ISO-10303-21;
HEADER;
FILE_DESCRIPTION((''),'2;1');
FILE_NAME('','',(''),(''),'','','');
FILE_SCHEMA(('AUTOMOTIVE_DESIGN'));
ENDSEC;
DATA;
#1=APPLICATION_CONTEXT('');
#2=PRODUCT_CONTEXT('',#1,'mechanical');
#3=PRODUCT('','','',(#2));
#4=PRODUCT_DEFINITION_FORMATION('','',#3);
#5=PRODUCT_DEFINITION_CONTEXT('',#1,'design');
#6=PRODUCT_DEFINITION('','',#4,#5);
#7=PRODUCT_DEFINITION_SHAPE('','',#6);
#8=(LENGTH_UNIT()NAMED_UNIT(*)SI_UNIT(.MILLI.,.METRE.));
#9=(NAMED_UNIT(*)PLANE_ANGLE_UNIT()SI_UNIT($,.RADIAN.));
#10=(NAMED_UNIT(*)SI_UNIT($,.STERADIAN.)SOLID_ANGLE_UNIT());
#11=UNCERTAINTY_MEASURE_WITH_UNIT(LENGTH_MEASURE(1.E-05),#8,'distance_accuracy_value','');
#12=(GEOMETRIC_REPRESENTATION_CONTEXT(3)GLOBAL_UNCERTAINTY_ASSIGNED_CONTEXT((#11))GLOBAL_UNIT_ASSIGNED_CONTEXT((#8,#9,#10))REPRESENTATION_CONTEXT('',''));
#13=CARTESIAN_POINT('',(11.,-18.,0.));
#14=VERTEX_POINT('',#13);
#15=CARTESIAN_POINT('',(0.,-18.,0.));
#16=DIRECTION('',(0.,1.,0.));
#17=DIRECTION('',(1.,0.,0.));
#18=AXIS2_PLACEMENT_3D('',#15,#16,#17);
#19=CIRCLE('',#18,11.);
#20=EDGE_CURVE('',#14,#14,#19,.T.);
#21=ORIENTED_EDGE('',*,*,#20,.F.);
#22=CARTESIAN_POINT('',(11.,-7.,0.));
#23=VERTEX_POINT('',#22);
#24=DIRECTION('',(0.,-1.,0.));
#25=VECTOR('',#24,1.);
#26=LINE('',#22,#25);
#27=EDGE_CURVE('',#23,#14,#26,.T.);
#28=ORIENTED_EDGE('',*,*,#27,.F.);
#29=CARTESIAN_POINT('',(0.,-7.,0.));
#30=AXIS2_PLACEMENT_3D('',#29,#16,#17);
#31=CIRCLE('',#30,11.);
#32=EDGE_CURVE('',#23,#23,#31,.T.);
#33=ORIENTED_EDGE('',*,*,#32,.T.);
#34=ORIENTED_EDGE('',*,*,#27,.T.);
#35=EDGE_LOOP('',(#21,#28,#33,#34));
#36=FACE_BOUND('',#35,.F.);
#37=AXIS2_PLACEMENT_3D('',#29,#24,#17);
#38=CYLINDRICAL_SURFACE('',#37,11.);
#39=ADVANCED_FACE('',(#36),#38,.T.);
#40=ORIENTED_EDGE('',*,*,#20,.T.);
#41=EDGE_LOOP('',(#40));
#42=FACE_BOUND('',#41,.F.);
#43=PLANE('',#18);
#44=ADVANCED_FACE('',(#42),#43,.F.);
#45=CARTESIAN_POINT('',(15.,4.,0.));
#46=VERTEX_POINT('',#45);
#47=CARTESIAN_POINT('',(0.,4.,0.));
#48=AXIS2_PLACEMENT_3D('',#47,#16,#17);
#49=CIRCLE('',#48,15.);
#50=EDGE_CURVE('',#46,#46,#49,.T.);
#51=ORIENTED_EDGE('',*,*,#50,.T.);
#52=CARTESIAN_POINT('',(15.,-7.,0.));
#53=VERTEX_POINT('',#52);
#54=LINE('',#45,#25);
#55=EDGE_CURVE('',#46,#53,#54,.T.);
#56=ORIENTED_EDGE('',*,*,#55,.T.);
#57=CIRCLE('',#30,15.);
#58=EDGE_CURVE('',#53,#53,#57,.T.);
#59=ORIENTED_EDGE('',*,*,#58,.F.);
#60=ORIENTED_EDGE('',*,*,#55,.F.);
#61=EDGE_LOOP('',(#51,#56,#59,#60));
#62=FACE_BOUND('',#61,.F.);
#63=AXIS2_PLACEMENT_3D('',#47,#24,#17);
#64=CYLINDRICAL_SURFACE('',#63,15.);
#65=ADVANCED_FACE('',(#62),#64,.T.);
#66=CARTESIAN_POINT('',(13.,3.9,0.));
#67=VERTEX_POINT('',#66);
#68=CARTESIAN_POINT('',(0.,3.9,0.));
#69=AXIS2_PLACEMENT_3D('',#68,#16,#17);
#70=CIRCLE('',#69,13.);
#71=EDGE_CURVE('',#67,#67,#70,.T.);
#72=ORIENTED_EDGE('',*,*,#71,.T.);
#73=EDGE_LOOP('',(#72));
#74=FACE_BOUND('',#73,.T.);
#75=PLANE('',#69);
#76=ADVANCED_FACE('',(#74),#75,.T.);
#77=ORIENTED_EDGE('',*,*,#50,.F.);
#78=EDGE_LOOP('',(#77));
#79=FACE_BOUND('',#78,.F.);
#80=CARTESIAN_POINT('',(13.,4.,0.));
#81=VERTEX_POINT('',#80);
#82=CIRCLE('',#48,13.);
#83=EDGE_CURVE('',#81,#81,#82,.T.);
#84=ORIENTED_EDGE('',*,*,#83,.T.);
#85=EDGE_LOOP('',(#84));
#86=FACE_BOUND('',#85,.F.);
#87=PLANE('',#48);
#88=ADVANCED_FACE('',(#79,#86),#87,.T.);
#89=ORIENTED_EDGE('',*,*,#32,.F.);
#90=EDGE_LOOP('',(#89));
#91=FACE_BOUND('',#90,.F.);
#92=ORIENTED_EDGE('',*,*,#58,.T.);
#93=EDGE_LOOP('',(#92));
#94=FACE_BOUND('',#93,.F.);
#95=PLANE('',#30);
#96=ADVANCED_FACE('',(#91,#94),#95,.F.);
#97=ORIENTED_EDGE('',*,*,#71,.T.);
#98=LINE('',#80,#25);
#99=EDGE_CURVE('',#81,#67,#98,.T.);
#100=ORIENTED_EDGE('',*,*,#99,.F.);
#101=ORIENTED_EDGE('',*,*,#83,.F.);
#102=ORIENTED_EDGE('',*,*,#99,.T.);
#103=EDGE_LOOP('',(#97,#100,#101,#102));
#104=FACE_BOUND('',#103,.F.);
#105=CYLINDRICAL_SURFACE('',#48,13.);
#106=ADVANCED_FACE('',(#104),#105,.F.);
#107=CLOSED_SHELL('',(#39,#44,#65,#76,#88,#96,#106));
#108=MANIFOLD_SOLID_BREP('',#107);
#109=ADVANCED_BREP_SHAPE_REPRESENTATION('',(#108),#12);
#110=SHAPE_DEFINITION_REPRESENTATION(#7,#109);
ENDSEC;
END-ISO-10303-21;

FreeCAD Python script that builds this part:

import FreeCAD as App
import Part
import Sketcher
from FreeCAD import Vector

doc = App.newDocument("Part")
body = doc.addObject("PartDesign::Body", "Body")

# Sketch on XY plane
sketch1 = doc.addObject("Sketcher::SketchObject", "Sketch")
body.addObject(sketch1)
sketch1.AttachmentSupport = (doc.XY_Plane, [""])
sketch1.MapMode = "FlatFace"
sketch1.addGeometry(Part.LineSegment(Vector(15, 4, 0), Vector(0, 4, 0)), False)
sketch1.addGeometry(Part.LineSegment(Vector(0, 4, 0), Vector(0, -18, 0)), False)
sketch1.addGeometry(Part.LineSegment(Vector(0, -18, 0), Vector(11, -18, 0)), False)
sketch1.addGeometry(Part.LineSegment(Vector(11, -18, 0), Vector(11, -7, 0)), False)
sketch1.addGeometry(Part.LineSegment(Vector(11, -7, 0), Vector(15, -7, 0)), False)
sketch1.addGeometry(Part.LineSegment(Vector(15, -7, 0), Vector(15, 4, 0)), False)
sketch1.addConstraint(Sketcher.Constraint("Coincident", 0, 2, 1, 1))
sketch1.addConstraint(Sketcher.Constraint("Coincident", 1, 2, 2, 1))
sketch1.addConstraint(Sketcher.Constraint("Coincident", 2, 2, 3, 1))
sketch1.addConstraint(Sketcher.Constraint("Coincident", 3, 2, 4, 1))
sketch1.addConstraint(Sketcher.Constraint("Coincident", 4, 2, 5, 1))
sketch1.addConstraint(Sketcher.Constraint("Coincident", 5, 2, 0, 1))
sketch1.addConstraint(Sketcher.Constraint("Horizontal", 0))
sketch1.addConstraint(Sketcher.Constraint("Vertical", 1))
sketch1.addConstraint(Sketcher.Constraint("Horizontal", 2))
sketch1.addConstraint(Sketcher.Constraint("Vertical", 3))
sketch1.addConstraint(Sketcher.Constraint("Horizontal", 4))
sketch1.addConstraint(Sketcher.Constraint("Vertical", 5))
sketch1.addConstraint(Sketcher.Constraint("PointOnObject", 0, 2, -2))
sketch1.addConstraint(Sketcher.Constraint("Equal", 2, 3))
sketch1.addConstraint(Sketcher.Constraint("Equal", 3, 5))
sketch1.addConstraint(Sketcher.Constraint("DistanceX", 0, 2, 0, 1, 15.0))
sketch1.addConstraint(Sketcher.Constraint("DistanceX", 2, 1, 2, 2, 11.0))
sketch1.addConstraint(Sketcher.Constraint("DistanceY", -1, 1, 0, 2, 4.0))
revolution = doc.addObject("PartDesign::Revolution", "Revolution")
body.addObject(revolution)
revolution.Profile = sketch1
revolution.ReferenceAxis = (sketch1, ["V_Axis"])
revolution.Angle = 360

# Sketch on XZ plane
sketch2 = doc.addObject("Sketcher::SketchObject", "Sketch001")
body.addObject(sketch2)
sketch2.AttachmentSupport = (doc.XZ_Plane, [""])
sketch2.MapMode = "FlatFace"
sketch2.AttachmentOffset = App.Placement(Vector(0, 0, -4), App.Rotation())
sketch2.addGeometry(Part.Circle(Vector(0, 0, 0), Vector(0, 0, 1), 13), False)
sketch2.addConstraint(Sketcher.Constraint("Coincident", 0, 3, -1, 1))
sketch2.addConstraint(Sketcher.Constraint("Diameter", 0, 26.0))
pocket1 = doc.addObject("PartDesign::Pocket", "Pocket")
body.addObject(pocket1)
pocket1.Profile = sketch2
pocket1.Length = 0.1
pocket1.Reversed = True

doc.recompute()
